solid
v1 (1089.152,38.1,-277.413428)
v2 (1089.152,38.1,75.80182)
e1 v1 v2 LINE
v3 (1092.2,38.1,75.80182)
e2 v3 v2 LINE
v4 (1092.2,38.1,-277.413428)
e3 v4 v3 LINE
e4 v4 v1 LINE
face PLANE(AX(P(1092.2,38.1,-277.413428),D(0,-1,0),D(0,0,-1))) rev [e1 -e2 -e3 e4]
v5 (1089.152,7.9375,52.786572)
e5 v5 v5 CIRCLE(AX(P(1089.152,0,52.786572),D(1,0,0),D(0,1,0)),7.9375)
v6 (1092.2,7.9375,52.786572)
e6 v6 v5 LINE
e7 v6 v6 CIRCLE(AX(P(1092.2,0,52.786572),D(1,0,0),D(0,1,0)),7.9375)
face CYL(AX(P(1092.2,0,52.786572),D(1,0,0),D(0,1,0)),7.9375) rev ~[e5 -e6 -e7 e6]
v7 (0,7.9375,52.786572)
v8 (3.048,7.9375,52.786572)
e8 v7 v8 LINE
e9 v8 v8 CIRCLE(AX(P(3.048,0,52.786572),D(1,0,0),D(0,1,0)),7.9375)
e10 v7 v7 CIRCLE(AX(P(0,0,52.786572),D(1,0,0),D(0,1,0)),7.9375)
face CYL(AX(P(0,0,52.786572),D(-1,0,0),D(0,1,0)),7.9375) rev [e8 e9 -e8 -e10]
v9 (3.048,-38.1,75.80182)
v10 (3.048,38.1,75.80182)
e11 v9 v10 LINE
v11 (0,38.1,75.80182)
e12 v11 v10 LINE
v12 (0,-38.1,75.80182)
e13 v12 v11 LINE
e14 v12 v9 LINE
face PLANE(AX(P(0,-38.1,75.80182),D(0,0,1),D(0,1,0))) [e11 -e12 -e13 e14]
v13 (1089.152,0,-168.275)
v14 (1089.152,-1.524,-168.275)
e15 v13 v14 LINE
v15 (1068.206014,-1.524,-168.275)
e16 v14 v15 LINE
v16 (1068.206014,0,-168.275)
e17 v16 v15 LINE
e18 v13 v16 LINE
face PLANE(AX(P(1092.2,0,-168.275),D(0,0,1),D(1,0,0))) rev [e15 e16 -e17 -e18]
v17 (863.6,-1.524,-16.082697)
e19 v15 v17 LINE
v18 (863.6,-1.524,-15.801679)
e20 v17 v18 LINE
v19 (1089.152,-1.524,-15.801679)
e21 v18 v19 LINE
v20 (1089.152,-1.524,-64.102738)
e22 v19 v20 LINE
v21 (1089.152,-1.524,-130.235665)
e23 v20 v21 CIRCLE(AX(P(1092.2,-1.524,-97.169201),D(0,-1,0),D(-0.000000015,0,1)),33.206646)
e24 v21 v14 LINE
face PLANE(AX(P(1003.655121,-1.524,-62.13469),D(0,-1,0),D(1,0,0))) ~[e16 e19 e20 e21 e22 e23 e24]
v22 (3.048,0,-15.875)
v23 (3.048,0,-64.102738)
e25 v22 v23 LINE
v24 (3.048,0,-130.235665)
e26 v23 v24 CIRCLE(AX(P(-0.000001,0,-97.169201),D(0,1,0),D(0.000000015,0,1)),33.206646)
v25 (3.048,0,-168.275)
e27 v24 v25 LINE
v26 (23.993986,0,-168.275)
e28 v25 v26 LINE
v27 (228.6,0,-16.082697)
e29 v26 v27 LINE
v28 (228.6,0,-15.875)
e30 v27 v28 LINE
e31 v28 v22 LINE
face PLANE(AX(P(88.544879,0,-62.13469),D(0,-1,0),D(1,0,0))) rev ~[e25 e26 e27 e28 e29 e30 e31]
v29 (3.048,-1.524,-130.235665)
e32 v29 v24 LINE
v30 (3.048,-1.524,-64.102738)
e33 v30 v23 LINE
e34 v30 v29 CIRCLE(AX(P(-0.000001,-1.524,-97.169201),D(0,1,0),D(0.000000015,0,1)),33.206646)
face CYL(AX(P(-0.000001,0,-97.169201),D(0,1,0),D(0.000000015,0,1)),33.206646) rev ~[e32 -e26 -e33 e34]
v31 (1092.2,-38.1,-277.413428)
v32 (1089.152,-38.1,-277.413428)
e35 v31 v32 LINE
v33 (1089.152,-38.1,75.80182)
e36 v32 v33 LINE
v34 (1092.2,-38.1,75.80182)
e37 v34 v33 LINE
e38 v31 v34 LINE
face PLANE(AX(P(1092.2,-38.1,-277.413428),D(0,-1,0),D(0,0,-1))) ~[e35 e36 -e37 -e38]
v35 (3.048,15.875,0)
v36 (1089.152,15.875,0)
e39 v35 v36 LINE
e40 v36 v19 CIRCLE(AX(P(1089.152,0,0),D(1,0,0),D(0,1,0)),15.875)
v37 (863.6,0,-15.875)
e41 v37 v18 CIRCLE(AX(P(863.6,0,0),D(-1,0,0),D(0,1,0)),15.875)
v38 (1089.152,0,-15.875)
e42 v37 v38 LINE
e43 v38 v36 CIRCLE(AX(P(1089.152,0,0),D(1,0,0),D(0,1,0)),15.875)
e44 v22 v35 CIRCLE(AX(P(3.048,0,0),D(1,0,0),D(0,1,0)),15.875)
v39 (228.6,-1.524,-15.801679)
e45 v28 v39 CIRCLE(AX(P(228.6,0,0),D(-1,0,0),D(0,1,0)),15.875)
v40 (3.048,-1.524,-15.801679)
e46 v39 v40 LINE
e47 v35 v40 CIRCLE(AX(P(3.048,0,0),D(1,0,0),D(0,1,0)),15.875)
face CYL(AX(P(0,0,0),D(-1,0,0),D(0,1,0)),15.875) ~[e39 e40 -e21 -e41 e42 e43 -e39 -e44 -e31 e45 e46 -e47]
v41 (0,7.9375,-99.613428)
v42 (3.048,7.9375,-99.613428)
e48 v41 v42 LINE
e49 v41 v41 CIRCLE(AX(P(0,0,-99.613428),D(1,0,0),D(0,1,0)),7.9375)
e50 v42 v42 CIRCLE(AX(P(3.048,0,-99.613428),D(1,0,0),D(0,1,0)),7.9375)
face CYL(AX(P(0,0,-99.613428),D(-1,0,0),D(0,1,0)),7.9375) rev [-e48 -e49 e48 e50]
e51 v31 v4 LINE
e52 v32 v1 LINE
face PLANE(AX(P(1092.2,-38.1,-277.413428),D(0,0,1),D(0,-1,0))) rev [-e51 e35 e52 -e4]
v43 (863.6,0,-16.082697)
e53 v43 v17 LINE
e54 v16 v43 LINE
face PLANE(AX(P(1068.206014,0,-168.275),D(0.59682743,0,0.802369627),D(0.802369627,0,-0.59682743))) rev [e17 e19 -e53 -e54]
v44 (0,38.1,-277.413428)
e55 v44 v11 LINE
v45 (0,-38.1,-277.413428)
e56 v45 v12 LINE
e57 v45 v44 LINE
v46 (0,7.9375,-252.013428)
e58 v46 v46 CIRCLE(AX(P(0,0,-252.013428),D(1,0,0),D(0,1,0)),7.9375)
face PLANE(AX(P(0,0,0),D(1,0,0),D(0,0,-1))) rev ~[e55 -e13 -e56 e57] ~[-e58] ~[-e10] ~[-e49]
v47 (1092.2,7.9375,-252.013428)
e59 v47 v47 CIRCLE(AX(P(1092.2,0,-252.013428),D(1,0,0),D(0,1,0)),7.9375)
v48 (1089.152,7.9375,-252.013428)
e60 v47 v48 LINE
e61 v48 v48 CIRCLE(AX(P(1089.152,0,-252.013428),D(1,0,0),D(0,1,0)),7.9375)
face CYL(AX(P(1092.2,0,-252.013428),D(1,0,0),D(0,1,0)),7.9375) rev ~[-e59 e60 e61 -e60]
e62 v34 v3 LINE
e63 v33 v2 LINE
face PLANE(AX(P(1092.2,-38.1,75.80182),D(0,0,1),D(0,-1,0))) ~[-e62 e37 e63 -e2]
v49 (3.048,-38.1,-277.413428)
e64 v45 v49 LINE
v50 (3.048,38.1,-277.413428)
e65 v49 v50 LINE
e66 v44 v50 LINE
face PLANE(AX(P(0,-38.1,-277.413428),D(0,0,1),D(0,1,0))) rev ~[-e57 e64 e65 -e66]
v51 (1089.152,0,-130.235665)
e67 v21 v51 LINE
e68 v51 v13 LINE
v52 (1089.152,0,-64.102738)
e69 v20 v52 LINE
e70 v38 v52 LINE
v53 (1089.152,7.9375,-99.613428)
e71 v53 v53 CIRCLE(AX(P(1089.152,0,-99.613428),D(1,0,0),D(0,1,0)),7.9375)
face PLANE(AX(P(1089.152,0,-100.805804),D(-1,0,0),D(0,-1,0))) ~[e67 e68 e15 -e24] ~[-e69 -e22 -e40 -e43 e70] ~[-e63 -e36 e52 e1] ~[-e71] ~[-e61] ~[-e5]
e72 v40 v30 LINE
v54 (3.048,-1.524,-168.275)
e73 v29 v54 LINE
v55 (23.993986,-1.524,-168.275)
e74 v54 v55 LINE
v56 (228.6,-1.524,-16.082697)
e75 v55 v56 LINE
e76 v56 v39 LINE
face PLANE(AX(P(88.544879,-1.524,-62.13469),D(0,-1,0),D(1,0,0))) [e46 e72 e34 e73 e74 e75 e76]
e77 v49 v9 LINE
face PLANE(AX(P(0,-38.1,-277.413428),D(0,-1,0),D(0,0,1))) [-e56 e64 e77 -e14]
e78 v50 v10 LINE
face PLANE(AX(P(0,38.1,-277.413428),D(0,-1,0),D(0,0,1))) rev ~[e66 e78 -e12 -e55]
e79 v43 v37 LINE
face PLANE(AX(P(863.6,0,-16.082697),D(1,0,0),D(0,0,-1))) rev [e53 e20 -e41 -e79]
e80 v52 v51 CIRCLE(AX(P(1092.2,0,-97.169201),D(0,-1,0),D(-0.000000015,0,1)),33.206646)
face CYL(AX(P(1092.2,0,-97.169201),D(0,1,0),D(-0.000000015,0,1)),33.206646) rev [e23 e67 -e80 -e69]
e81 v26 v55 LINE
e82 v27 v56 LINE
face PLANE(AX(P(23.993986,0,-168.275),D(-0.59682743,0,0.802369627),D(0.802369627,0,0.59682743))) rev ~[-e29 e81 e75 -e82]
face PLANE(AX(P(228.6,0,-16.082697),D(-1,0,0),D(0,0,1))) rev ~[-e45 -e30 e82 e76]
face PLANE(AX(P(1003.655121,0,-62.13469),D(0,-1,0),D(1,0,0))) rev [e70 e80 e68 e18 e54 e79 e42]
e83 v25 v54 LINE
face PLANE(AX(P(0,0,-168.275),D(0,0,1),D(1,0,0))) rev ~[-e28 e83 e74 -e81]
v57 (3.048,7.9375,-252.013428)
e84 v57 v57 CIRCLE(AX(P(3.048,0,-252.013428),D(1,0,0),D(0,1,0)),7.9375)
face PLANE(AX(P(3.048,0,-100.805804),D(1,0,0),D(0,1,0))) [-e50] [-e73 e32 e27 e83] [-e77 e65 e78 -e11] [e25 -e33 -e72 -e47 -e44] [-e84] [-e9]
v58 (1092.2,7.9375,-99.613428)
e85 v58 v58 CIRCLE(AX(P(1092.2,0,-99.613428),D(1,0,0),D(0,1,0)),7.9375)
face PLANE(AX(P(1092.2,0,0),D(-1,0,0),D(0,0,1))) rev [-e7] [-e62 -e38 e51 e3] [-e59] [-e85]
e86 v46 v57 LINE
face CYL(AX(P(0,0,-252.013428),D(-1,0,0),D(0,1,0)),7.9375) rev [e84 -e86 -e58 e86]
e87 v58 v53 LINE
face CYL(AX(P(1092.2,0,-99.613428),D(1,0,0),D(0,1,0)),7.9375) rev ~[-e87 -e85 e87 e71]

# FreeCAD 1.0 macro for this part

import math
import FreeCAD as App
import Part
import Sketcher
Q = App.Units.Quantity


def add_polygon(sketch, points):
    """Adds a closed chain of lines whose ends are joined by coincident constraints."""
    first, n = sketch.GeometryCount, len(points)
    for a, b in zip(points, points[1:] + points[:1]):
        sketch.addGeometry(Part.LineSegment(App.Vector(*a, 0), App.Vector(*b, 0)), False)
    for i in range(n):
        sketch.addConstraint(Sketcher.Constraint("Coincident", first + i, 2, first + (i + 1) % n, 1))

doc = App.newDocument("Part")
body = doc.addObject("PartDesign::Body", "Body")

# Sketch on YZ plane
sketch1 = body.newObject("Sketcher::SketchObject", "Sketch")
sketch1.AttachmentSupport = (doc.getObject("YZ_Plane"), [""])
sketch1.MapMode = "FlatFace"
sketch1.addGeometry(Part.Circle(App.Vector(0, 0, 0), App.Vector(0, 0, 1), 16), False)
sketch1.addConstraint(Sketcher.Constraint("Coincident", 0, 3, -1, 1))
sketch1.addConstraint(Sketcher.Constraint("Diameter", 0, Q("1.25 in")))
pad1 = body.newObject("PartDesign::Pad", "Pad")
pad1.Profile = sketch1
pad1.Length = Q("43 in")

# Sketch on YZ plane
sketch2 = body.newObject("Sketcher::SketchObject", "Sketch001")
sketch2.AttachmentSupport = (doc.getObject("YZ_Plane"), [""])
sketch2.MapMode = "FlatFace"
add_polygon(sketch2, [(-38, 76), (-38, -277), (38, -277), (38, 76)])  # lines 0-3
sketch2.addGeometry(Part.Circle(App.Vector(0, -252, 0), App.Vector(0, 0, 1), 8), False)  # 4
sketch2.addGeometry(Part.Circle(App.Vector(0, -100, 0), App.Vector(0, 0, 1), 8), False)  # 5
sketch2.addGeometry(Part.Circle(App.Vector(0, 0, 0), App.Vector(0, 0, 1), 16), False)  # 6
sketch2.addGeometry(Part.Circle(App.Vector(0, 53, 0), App.Vector(0, 0, 1), 8), False)  # 7
sketch2.addConstraint(Sketcher.Constraint("Vertical", 0))
sketch2.addConstraint(Sketcher.Constraint("Horizontal", 1))
sketch2.addConstraint(Sketcher.Constraint("Vertical", 2))
sketch2.addConstraint(Sketcher.Constraint("Horizontal", 3))
sketch2.addConstraint(Sketcher.Constraint("Coincident", 6, 3, -1, 1))
sketch2.addConstraint(Sketcher.Constraint("Equal", 4, 5))
sketch2.addConstraint(Sketcher.Constraint("Equal", 5, 7))
sketch2.addConstraint(Sketcher.Constraint("PointOnObject", 4, 3, -2))
sketch2.addConstraint(Sketcher.Constraint("PointOnObject", 5, 3, -2))
sketch2.addConstraint(Sketcher.Constraint("PointOnObject", 7, 3, -2))
sketch2.addConstraint(Sketcher.Constraint("Diameter", 6, Q("1.25 in")))
sketch2.addConstraint(Sketcher.Constraint("DistanceX", 1, 1, 1, 2, Q("3 in")))
sketch2.addConstraint(Sketcher.Constraint("Diameter", 4, Q("0.625 in")))
sketch2.addConstraint(Sketcher.Constraint("DistanceY", 4, 3, 5, 3, Q("6 in")))
sketch2.addConstraint(Sketcher.Constraint("DistanceY", 5, 3, 7, 3, Q("6 in")))
sketch2.addConstraint(Sketcher.Constraint("DistanceY", 0, 2, 4, 3, Q("1 in")))
sketch2.addConstraint(Sketcher.Constraint("DistanceX", 0, 2, -1, 1, Q("1.5 in")))
sketch2.addConstraint(Sketcher.Constraint("DistanceY", 0, 2, 0, 1, Q("353.215248 mm")))
sketch2.addConstraint(Sketcher.Constraint("DistanceY", 4, 3, -1, 1, Q("252.013428 mm")))
pad2 = body.newObject("PartDesign::Pad", "Pad001")
pad2.Profile = sketch2
pad2.Length = Q("0.12 in")

# Sketch on XZ plane
sketch3 = body.newObject("Sketcher::SketchObject", "Sketch002")
sketch3.AttachmentSupport = (doc.getObject("XZ_Plane"), [""])
sketch3.MapMode = "FlatFace"
sketch3.addGeometry(Part.LineSegment(App.Vector(229, 0, 0), App.Vector(0, 0, 0)), False)
sketch3.addGeometry(Part.LineSegment(App.Vector(0, 0, 0), App.Vector(0, -64, 0)), False)
sketch3.addGeometry(Part.ArcOfCircle(Part.Circle(App.Vector(0, -97, 0), App.Vector(0, 0, 1), 33), math.radians(-90), math.radians(90)), False)
sketch3.addGeometry(Part.LineSegment(App.Vector(0, -130, 0), App.Vector(0, -168, 0)), False)
sketch3.addGeometry(Part.LineSegment(App.Vector(0, -168, 0), App.Vector(24, -168, 0)), False)
sketch3.addGeometry(Part.LineSegment(App.Vector(24, -168, 0), App.Vector(229, -16, 0)), False)
sketch3.addGeometry(Part.LineSegment(App.Vector(229, -16, 0), App.Vector(229, 0, 0)), False)
sketch3.addConstraint(Sketcher.Constraint("Coincident", 0, 2, 1, 1))
sketch3.addConstraint(Sketcher.Constraint("Coincident", 1, 2, 2, 2))
sketch3.addConstraint(Sketcher.Constraint("Coincident", 2, 1, 3, 1))
sketch3.addConstraint(Sketcher.Constraint("Coincident", 3, 2, 4, 1))
sketch3.addConstraint(Sketcher.Constraint("Coincident", 4, 2, 5, 1))
sketch3.addConstraint(Sketcher.Constraint("Coincident", 5, 2, 6, 1))
sketch3.addConstraint(Sketcher.Constraint("Coincident", 6, 2, 0, 1))
sketch3.addConstraint(Sketcher.Constraint("Horizontal", 0))
sketch3.addConstraint(Sketcher.Constraint("Vertical", 1))
sketch3.addConstraint(Sketcher.Constraint("Vertical", 3))
sketch3.addConstraint(Sketcher.Constraint("Horizontal", 4))
sketch3.addConstraint(Sketcher.Constraint("Vertical", 6))
sketch3.addConstraint(Sketcher.Constraint("Coincident", 0, 2, -1, 1))
sketch3.addConstraint(Sketcher.Constraint("PointOnObject", 2, 3, -2))
sketch3.addConstraint(Sketcher.Constraint("PointOnObject", 2, 1, -2))
sketch3.addConstraint(Sketcher.Constraint("DistanceX", 0, 2, 0, 1, Q("9 in")))
sketch3.addConstraint(Sketcher.Constraint("DistanceY", 3, 2, -1, 1, Q("6.625 in")))
sketch3.addConstraint(Sketcher.Constraint("Radius", 2, Q("33.206646 mm")))
sketch3.addConstraint(Sketcher.Constraint("DistanceY", 2, 3, -1, 1, Q("97.169201 mm")))
sketch3.addConstraint(Sketcher.Constraint("DistanceX", 4, 1, 4, 2, Q("23.993986 mm")))
sketch3.addConstraint(Sketcher.Constraint("DistanceY", 6, 1, 6, 2, Q("16.082697 mm")))
pad3 = body.newObject("PartDesign::Pad", "Pad002")
pad3.Profile = sketch3
pad3.Length = Q("0.06 in")

# Sketch on XZ plane
sketch4 = body.newObject("Sketcher::SketchObject", "Sketch003")
sketch4.AttachmentSupport = (doc.getObject("XZ_Plane"), [""])
sketch4.MapMode = "FlatFace"
sketch4.addGeometry(Part.LineSegment(App.Vector(229, 0, 0), App.Vector(0, 0, 0)), False)
sketch4.addGeometry(Part.LineSegment(App.Vector(0, 0, 0), App.Vector(0, -64, 0)), False)
sketch4.addGeometry(Part.ArcOfCircle(Part.Circle(App.Vector(0, -97, 0), App.Vector(0, 0, 1), 33), math.radians(-90), math.radians(90)), False)
sketch4.addGeometry(Part.LineSegment(App.Vector(0, -130, 0), App.Vector(0, -168, 0)), False)
sketch4.addGeometry(Part.LineSegment(App.Vector(0, -168, 0), App.Vector(24, -168, 0)), False)
sketch4.addGeometry(Part.LineSegment(App.Vector(24, -168, 0), App.Vector(229, -16, 0)), False)
sketch4.addGeometry(Part.LineSegment(App.Vector(229, -16, 0), App.Vector(229, 0, 0)), False)
sketch4.addConstraint(Sketcher.Constraint("Coincident", 0, 2, 1, 1))
sketch4.addConstraint(Sketcher.Constraint("Coincident", 1, 2, 2, 2))
sketch4.addConstraint(Sketcher.Constraint("Coincident", 2, 1, 3, 1))
sketch4.addConstraint(Sketcher.Constraint("Coincident", 3, 2, 4, 1))
sketch4.addConstraint(Sketcher.Constraint("Coincident", 4, 2, 5, 1))
sketch4.addConstraint(Sketcher.Constraint("Coincident", 5, 2, 6, 1))
sketch4.addConstraint(Sketcher.Constraint("Coincident", 6, 2, 0, 1))
sketch4.addConstraint(Sketcher.Constraint("Horizontal", 0))
sketch4.addConstraint(Sketcher.Constraint("Vertical", 1))
sketch4.addConstraint(Sketcher.Constraint("Vertical", 3))
sketch4.addConstraint(Sketcher.Constraint("Horizontal", 4))
sketch4.addConstraint(Sketcher.Constraint("Vertical", 6))
sketch4.addConstraint(Sketcher.Constraint("Coincident", 0, 2, -1, 1))
sketch4.addConstraint(Sketcher.Constraint("PointOnObject", 2, 3, -2))
sketch4.addConstraint(Sketcher.Constraint("PointOnObject", 2, 1, -2))
sketch4.addConstraint(Sketcher.Constraint("DistanceX", 0, 2, 0, 1, Q("9 in")))
sketch4.addConstraint(Sketcher.Constraint("DistanceY", 3, 2, -1, 1, Q("6.625 in")))
sketch4.addConstraint(Sketcher.Constraint("Radius", 2, Q("33.206646 mm")))
sketch4.addConstraint(Sketcher.Constraint("DistanceY", 2, 3, -1, 1, Q("97.169201 mm")))
sketch4.addConstraint(Sketcher.Constraint("DistanceX", 4, 1, 4, 2, Q("23.993986 mm")))
sketch4.addConstraint(Sketcher.Constraint("DistanceY", 6, 1, 6, 2, Q("16.082697 mm")))
pad4 = body.newObject("PartDesign::Pad", "Pad003")
pad4.Profile = sketch4
pad4.Length = Q("0.06 in")
body2 = doc.addObject("PartDesign::Body", "Body001")
doc.recompute()

body2.BaseFeature = body
doc.recompute()

mirroring = doc.addObject("Part::Mirroring", "Mirroring")
mirroring.Source = body
mirroring.Base = App.Vector(546.1, 0, 0)
mirroring.Normal = App.Vector(1, 0, 0)
body3 = doc.addObject("PartDesign::Body", "Body002")
body3.BaseFeature = mirroring
boolean = body2.newObject("PartDesign::Boolean", "Boolean")
boolean.Type = "Fuse"
boolean.addObjects([body3])
doc.recompute()
mirroring.Visibility = False

doc.recompute()
